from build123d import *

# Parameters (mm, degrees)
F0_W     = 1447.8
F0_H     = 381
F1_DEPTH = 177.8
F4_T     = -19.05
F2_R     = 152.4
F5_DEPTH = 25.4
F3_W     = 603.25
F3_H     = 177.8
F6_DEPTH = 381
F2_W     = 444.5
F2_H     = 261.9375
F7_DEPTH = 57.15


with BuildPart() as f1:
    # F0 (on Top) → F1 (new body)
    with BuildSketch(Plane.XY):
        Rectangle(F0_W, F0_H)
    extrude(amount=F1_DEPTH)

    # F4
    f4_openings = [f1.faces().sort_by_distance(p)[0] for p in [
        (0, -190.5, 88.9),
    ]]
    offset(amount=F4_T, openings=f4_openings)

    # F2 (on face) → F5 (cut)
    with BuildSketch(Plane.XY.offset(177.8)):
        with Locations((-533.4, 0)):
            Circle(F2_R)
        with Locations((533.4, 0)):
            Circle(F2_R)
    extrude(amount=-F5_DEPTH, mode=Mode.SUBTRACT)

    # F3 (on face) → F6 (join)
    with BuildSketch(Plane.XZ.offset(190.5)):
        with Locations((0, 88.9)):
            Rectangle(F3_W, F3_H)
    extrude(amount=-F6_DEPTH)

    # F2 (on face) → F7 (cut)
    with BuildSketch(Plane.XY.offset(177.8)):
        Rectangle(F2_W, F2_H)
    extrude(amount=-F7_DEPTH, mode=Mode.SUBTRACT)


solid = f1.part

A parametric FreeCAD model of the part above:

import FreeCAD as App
import Part
import Sketcher

V = App.Vector
Q = App.Units.Quantity


def faces_at(feature, points):
    """Names of the faces that lie closest to the given points."""
    faces = feature.Shape.Faces
    near = lambda p: min(range(len(faces)), key=lambda i: faces[i].distToShape(Part.Vertex(*p))[0])
    return sorted({f"Face{near(p) + 1}" for p in points})


def add_polygon(sketch, points):
    """Adds a closed chain of lines whose ends are joined by coincident constraints."""
    first, n = sketch.GeometryCount, len(points)
    for a, b in zip(points, points[1:] + points[:1]):
        sketch.addGeometry(Part.LineSegment(App.Vector(*a, 0), App.Vector(*b, 0)), False)
    for i in range(n):
        sketch.addConstraint(Sketcher.Constraint("Coincident", first + i, 2, first + (i + 1) % n, 1))

doc = App.newDocument("Part")
body = doc.addObject("PartDesign::Body", "Body")

sketch1 = body.newObject("Sketcher::SketchObject", "Sketch")
sketch1.AttachmentSupport = (doc.getObject("XY_Plane"), [""])
sketch1.MapMode = "FlatFace"
add_polygon(sketch1, [(-723.9, 190.5), (-723.9, -190.5), (723.9, -190.5), (723.9, 190.5)])
sketch1.addConstraint([
    Sketcher.Constraint("Vertical", 0),
    Sketcher.Constraint("Horizontal", 1),
    Sketcher.Constraint("Vertical", 2),
    Sketcher.Constraint("Horizontal", 3),
    Sketcher.Constraint("Symmetric", 0, 2, 2, 2, -1, 1),
    Sketcher.Constraint("DistanceX", 1, 1, 1, 2, Q("57 in")),
    Sketcher.Constraint("DistanceY", 0, 2, 0, 1, Q("15 in")),
])
pad1 = body.newObject("PartDesign::Pad", "Pad")
pad1.Profile = sketch1
pad1.Length = Q("7 in")
doc.recompute()

thickness = body.newObject("PartDesign::Thickness", "Thickness")
thickness.Base = (pad1, faces_at(pad1, [(0, -190.5, 88.9)]))
thickness.Value = Q("0.75 in")
thickness.Reversed = True
thickness.Join = "Arc"

sketch2 = body.newObject("Sketcher::SketchObject", "Sketch001")
sketch2.AttachmentSupport = (doc.getObject("XY_Plane"), [""])
sketch2.MapMode = "FlatFace"
sketch2.AttachmentOffset = App.Placement(V(0, 0, 7 * 25.4), App.Rotation())
sketch2.addGeometry([
    Part.Circle(V(-533.4, 0, 0), V(0, 0, 1), 152.4),
    Part.Circle(V(533.4, 0, 0), V(0, 0, 1), 152.4),
], False)
sketch2.addConstraint([
    Sketcher.Constraint("Equal", 0, 1),
    Sketcher.Constraint("Symmetric", 0, 3, 1, 3, -1, 1),
    Sketcher.Constraint("PointOnObject", 0, 3, -1),
    Sketcher.Constraint("Diameter", 0, Q("12 in")),
    Sketcher.Constraint("DistanceX", 0, 3, -1, 1, Q("21 in")),
])
pocket1 = body.newObject("PartDesign::Pocket", "Pocket")
pocket1.Profile = sketch2
pocket1.Length = Q("1 in")

sketch3 = body.newObject("Sketcher::SketchObject", "Sketch002")
sketch3.AttachmentSupport = (doc.getObject("XZ_Plane"), [""])
sketch3.MapMode = "FlatFace"
sketch3.AttachmentOffset = App.Placement(V(0, 0, 7.5 * 25.4), App.Rotation())
add_polygon(sketch3, [(-301.625, 177.8), (-301.625, 0), (301.625, 0), (301.625, 177.8)])
sketch3.addConstraint([
    Sketcher.Constraint("Vertical", 0),
    Sketcher.Constraint("Horizontal", 1),
    Sketcher.Constraint("Vertical", 2),
    Sketcher.Constraint("Horizontal", 3),
    Sketcher.Constraint("Symmetric", 0, 2, 1, 2, -1, 1),
    Sketcher.Constraint("DistanceY", 0, 2, 0, 1, Q("7 in")),
    Sketcher.Constraint("DistanceX", 1, 1, 1, 2, Q("23.75 in")),
])
pad2 = body.newObject("PartDesign::Pad", "Pad001")
pad2.Profile = sketch3
pad2.Length = Q("15 in")
pad2.Reversed = True

sketch4 = body.newObject("Sketcher::SketchObject", "Sketch003")
sketch4.AttachmentSupport = (doc.getObject("XY_Plane"), [""])
sketch4.MapMode = "FlatFace"
sketch4.AttachmentOffset = App.Placement(V(0, 0, 7 * 25.4), App.Rotation())
add_polygon(sketch4, [(-222.25, 130.96875), (-222.25, -130.96875), (222.25, -130.96875), (222.25, 130.96875)])
sketch4.addConstraint([
    Sketcher.Constraint("Vertical", 0),
    Sketcher.Constraint("Horizontal", 1),
    Sketcher.Constraint("Vertical", 2),
    Sketcher.Constraint("Horizontal", 3),
    Sketcher.Constraint("Symmetric", 0, 2, 2, 2, -1, 1),
    Sketcher.Constraint("DistanceX", 1, 1, 1, 2, Q("17.5 in")),
    Sketcher.Constraint("DistanceY", 0, 2, 0, 1, Q("10.3125 in")),
])
pocket2 = body.newObject("PartDesign::Pocket", "Pocket001")
pocket2.Profile = sketch4
pocket2.Length = Q("2.25 in")

doc.recompute()
